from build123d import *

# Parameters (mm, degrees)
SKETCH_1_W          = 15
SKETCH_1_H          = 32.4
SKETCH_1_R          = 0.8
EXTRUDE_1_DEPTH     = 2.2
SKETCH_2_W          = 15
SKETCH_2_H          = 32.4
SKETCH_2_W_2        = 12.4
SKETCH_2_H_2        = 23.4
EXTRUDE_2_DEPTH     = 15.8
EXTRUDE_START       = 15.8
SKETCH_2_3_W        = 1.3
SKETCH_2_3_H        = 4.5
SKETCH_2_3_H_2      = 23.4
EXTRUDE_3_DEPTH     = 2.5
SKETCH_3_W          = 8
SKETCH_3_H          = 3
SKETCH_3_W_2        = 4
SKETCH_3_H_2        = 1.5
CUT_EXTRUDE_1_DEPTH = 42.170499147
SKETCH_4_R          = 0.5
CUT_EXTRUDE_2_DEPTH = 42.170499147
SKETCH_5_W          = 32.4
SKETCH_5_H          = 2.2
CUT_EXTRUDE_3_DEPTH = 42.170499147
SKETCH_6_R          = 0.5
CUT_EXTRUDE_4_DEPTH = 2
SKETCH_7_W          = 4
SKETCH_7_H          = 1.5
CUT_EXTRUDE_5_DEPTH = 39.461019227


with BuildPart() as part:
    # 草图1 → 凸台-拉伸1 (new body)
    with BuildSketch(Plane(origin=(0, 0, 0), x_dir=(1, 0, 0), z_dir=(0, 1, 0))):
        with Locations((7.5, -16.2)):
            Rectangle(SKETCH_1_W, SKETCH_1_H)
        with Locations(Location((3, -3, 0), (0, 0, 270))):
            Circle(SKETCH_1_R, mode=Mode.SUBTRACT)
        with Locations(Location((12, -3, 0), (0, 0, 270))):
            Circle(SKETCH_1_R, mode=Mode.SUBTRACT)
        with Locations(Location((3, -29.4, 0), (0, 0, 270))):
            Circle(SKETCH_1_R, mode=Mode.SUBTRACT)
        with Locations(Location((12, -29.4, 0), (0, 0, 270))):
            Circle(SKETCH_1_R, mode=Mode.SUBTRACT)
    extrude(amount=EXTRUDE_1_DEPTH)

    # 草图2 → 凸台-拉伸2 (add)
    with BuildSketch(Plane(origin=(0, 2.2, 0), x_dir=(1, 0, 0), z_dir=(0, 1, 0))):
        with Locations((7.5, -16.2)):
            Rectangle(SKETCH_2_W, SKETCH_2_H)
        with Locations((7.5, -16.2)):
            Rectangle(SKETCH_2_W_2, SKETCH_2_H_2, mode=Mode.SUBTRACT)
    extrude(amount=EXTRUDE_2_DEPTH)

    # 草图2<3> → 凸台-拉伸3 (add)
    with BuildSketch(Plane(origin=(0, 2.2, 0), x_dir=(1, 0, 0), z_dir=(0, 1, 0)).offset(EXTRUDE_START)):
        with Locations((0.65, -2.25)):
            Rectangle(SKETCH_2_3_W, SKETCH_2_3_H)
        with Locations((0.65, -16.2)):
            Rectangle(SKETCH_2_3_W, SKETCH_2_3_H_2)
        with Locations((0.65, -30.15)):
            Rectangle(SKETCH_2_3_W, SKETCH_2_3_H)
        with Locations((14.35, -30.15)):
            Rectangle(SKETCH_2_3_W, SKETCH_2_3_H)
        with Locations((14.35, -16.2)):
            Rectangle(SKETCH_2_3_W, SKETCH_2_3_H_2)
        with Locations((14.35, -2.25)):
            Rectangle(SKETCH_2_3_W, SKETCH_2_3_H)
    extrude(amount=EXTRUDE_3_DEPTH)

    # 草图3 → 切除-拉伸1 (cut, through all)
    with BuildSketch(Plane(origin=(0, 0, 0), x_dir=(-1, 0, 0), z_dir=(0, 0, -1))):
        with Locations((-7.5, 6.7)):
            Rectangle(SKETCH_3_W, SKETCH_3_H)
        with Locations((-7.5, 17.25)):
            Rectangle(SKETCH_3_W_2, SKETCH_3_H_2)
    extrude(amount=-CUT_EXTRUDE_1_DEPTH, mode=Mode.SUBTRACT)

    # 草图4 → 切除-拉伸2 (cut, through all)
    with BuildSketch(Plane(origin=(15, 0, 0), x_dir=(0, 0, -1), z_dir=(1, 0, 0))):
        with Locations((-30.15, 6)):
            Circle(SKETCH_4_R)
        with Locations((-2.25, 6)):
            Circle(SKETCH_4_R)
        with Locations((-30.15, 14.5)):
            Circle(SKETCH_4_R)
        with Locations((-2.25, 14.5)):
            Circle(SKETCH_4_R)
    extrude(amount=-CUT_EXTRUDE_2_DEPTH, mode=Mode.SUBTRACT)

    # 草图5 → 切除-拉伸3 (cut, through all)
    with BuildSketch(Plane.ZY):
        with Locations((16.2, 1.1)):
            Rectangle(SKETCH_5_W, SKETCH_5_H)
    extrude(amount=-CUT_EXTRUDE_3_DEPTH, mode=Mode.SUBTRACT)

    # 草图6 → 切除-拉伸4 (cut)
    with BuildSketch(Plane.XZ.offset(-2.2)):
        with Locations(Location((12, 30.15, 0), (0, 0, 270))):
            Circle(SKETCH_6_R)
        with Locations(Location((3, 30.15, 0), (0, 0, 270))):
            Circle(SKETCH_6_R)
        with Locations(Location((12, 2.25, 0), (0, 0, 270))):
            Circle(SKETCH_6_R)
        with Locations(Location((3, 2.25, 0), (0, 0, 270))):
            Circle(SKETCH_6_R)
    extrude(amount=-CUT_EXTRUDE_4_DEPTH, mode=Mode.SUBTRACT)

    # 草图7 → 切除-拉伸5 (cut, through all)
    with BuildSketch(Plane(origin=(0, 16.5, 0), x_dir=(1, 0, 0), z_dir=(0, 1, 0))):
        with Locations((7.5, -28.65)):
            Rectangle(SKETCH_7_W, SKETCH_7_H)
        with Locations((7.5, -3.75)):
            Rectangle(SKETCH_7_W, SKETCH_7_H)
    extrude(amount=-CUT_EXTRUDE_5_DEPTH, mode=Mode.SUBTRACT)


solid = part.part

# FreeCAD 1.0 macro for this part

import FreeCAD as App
import Part
import Sketcher

V = App.Vector
Q = App.Units.Quantity

doc = App.newDocument("Part")
body = doc.addObject("PartDesign::Body", "Body")

# Sketch on XZ plane
sketch1 = body.newObject("Sketcher::SketchObject", "Sketch")
sketch1.AttachmentSupport = (doc.getObject("XZ_Plane"), [""])
sketch1.MapMode = "FlatFace"
sketch1.addGeometry([
    Part.LineSegment(V(0, 0, 0), V(0, 32.4, 0)),  # 0
    Part.LineSegment(V(0, 32.4, 0), V(15, 32.4, 0)),  # 1
    Part.LineSegment(V(15, 32.4, 0), V(15, 0, 0)),  # 2
    Part.LineSegment(V(15, 0, 0), V(0, 0, 0)),  # 3
    Part.Circle(V(3, 29.4, 0), V(0, 0, 1), 0.8),  # 4
    Part.Circle(V(12, 29.4, 0), V(0, 0, 1), 0.8),  # 5
    Part.Circle(V(3, 3, 0), V(0, 0, 1), 0.8),  # 6
    Part.Circle(V(12, 3, 0), V(0, 0, 1), 0.8),  # 7
], False)
sketch1.addConstraint([
    Sketcher.Constraint("Coincident", 0, 2, 1, 1),
    Sketcher.Constraint("Coincident", 1, 2, 2, 1),
    Sketcher.Constraint("Coincident", 2, 2, 3, 1),
    Sketcher.Constraint("Coincident", 3, 2, 0, 1),
    Sketcher.Constraint("Vertical", 0),
    Sketcher.Constraint("Horizontal", 1),
    Sketcher.Constraint("Vertical", 2),
    Sketcher.Constraint("Horizontal", 3),
    Sketcher.Constraint("Coincident", 3, 2, -1, 1),
    Sketcher.Constraint("Equal", 4, 5),
    Sketcher.Constraint("Equal", 5, 6),
    Sketcher.Constraint("Equal", 6, 7),
    Sketcher.Constraint("Horizontal", 4, 3, 5, 3),
    Sketcher.Constraint("Horizontal", 6, 3, 7, 3),
    Sketcher.Constraint("Vertical", 4, 3, 6, 3),
    Sketcher.Constraint("Vertical", 5, 3, 7, 3),
    Sketcher.Constraint("Diameter", 4, Q("1.6 mm")),
    Sketcher.Constraint("DistanceX", 1, 1, 1, 2, Q("15 mm")),
    Sketcher.Constraint("DistanceY", 0, 1, 0, 2, Q("32.4 mm")),
    Sketcher.Constraint("DistanceX", -1, 1, 4, 3, Q("3 mm")),
    Sketcher.Constraint("DistanceX", -1, 1, 5, 3, Q("12 mm")),
    Sketcher.Constraint("DistanceY", -1, 1, 6, 3, Q("3 mm")),
    Sketcher.Constraint("DistanceY", 4, 3, 0, 2, Q("3 mm")),
])
pad1 = body.newObject("PartDesign::Pad", "Pad")
pad1.Profile = sketch1
pad1.Length = 2.2
pad1.Reversed = True

# Sketch on XZ plane
sketch2 = body.newObject("Sketcher::SketchObject", "Sketch001")
sketch2.AttachmentSupport = (doc.getObject("XZ_Plane"), [""])
sketch2.MapMode = "FlatFace"
sketch2.AttachmentOffset = App.Placement(V(0, 0, -2.2), App.Rotation())
sketch2.addGeometry([
    Part.LineSegment(V(0, 0, 0), V(0, 32.4, 0)),  # 0
    Part.LineSegment(V(0, 32.4, 0), V(15, 32.4, 0)),  # 1
    Part.LineSegment(V(15, 32.4, 0), V(15, 0, 0)),  # 2
    Part.LineSegment(V(15, 0, 0), V(0, 0, 0)),  # 3
    Part.LineSegment(V(13.7, 27.9, 0), V(1.3, 27.9, 0)),  # 4
    Part.LineSegment(V(1.3, 27.9, 0), V(1.3, 4.5, 0)),  # 5
    Part.LineSegment(V(1.3, 4.5, 0), V(13.7, 4.5, 0)),  # 6
    Part.LineSegment(V(13.7, 4.5, 0), V(13.7, 27.9, 0)),  # 7
], False)
sketch2.addConstraint([
    Sketcher.Constraint("Coincident", 0, 2, 1, 1),
    Sketcher.Constraint("Coincident", 1, 2, 2, 1),
    Sketcher.Constraint("Coincident", 2, 2, 3, 1),
    Sketcher.Constraint("Coincident", 3, 2, 0, 1),
    Sketcher.Constraint("Coincident", 4, 2, 5, 1),
    Sketcher.Constraint("Coincident", 5, 2, 6, 1),
    Sketcher.Constraint("Coincident", 6, 2, 7, 1),
    Sketcher.Constraint("Coincident", 7, 2, 4, 1),
    Sketcher.Constraint("Vertical", 0),
    Sketcher.Constraint("Horizontal", 1),
    Sketcher.Constraint("Vertical", 2),
    Sketcher.Constraint("Horizontal", 3),
    Sketcher.Constraint("Horizontal", 4),
    Sketcher.Constraint("Vertical", 5),
    Sketcher.Constraint("Horizontal", 6),
    Sketcher.Constraint("Vertical", 7),
    Sketcher.Constraint("Coincident", 3, 2, -1, 1),
    Sketcher.Constraint("DistanceX", 1, 1, 1, 2, Q("15 mm")),
    Sketcher.Constraint("DistanceX", 4, 2, 4, 1, Q("12.4 mm")),
    Sketcher.Constraint("DistanceY", 0, 1, 0, 2, Q("32.4 mm")),
    Sketcher.Constraint("DistanceY", 5, 2, 5, 1, Q("23.4 mm")),
    Sketcher.Constraint("DistanceX", -1, 1, 4, 2, Q("1.3 mm")),
    Sketcher.Constraint("DistanceY", -1, 1, 4, 2, Q("27.9 mm")),
])
pad2 = body.newObject("PartDesign::Pad", "Pad001")
pad2.Profile = sketch2
pad2.Length = 15.8
pad2.Reversed = True

# Sketch on XZ plane
sketch3 = body.newObject("Sketcher::SketchObject", "Sketch002")
sketch3.AttachmentSupport = (doc.getObject("XZ_Plane"), [""])
sketch3.MapMode = "FlatFace"
sketch3.AttachmentOffset = App.Placement(V(0, 0, -18), App.Rotation())
sketch3.addGeometry([
    Part.LineSegment(V(0, 0, 0), V(0, 32.4, 0)),  # 0
    Part.LineSegment(V(0, 32.4, 0), V(1.3, 32.4, 0)),  # 1
    Part.LineSegment(V(1.3, 32.4, 0), V(1.3, 0, 0)),  # 2
    Part.LineSegment(V(1.3, 0, 0), V(0, 0, 0)),  # 3
    Part.LineSegment(V(13.7, 32.4, 0), V(15, 32.4, 0)),  # 4
    Part.LineSegment(V(15, 32.4, 0), V(15, 0, 0)),  # 5
    Part.LineSegment(V(15, 0, 0), V(13.7, 0, 0)),  # 6
    Part.LineSegment(V(13.7, 0, 0), V(13.7, 32.4, 0)),  # 7
], False)
sketch3.addConstraint([
    Sketcher.Constraint("Coincident", 0, 2, 1, 1),
    Sketcher.Constraint("Coincident", 1, 2, 2, 1),
    Sketcher.Constraint("Coincident", 2, 2, 3, 1),
    Sketcher.Constraint("Coincident", 3, 2, 0, 1),
    Sketcher.Constraint("Coincident", 4, 2, 5, 1),
    Sketcher.Constraint("Coincident", 5, 2, 6, 1),
    Sketcher.Constraint("Coincident", 6, 2, 7, 1),
    Sketcher.Constraint("Coincident", 7, 2, 4, 1),
    Sketcher.Constraint("Vertical", 0),
    Sketcher.Constraint("Horizontal", 1),
    Sketcher.Constraint("Vertical", 2),
    Sketcher.Constraint("Horizontal", 3),
    Sketcher.Constraint("Horizontal", 4),
    Sketcher.Constraint("Vertical", 5),
    Sketcher.Constraint("Horizontal", 6),
    Sketcher.Constraint("Vertical", 7),
    Sketcher.Constraint("Coincident", 3, 2, -1, 1),
    Sketcher.Constraint("PointOnObject", 5, 2, -1),
    Sketcher.Constraint("Horizontal", 1, 2, 4, 2),
    Sketcher.Constraint("Equal", 3, 4),
    Sketcher.Constraint("DistanceX", 1, 1, 1, 2, Q("1.3 mm")),
    Sketcher.Constraint("DistanceY", 0, 1, 0, 2, Q("32.4 mm")),
    Sketcher.Constraint("DistanceX", -1, 1, 4, 2, Q("15 mm")),
])
pad3 = body.newObject("PartDesign::Pad", "Pad002")
pad3.Profile = sketch3
pad3.Length = 2.5
pad3.Reversed = True

# Sketch on XY plane
sketch4 = body.newObject("Sketcher::SketchObject", "Sketch003")
sketch4.AttachmentSupport = (doc.getObject("XY_Plane"), [""])
sketch4.MapMode = "FlatFace"
sketch4.addGeometry([
    Part.LineSegment(V(11.5, 8.2, 0), V(11.5, 5.2, 0)),  # 0
    Part.LineSegment(V(11.5, 5.2, 0), V(3.5, 5.2, 0)),  # 1
    Part.LineSegment(V(3.5, 5.2, 0), V(3.5, 8.2, 0)),  # 2
    Part.LineSegment(V(3.5, 8.2, 0), V(11.5, 8.2, 0)),  # 3
    Part.LineSegment(V(9.5, 18, 0), V(9.5, 16.5, 0)),  # 4
    Part.LineSegment(V(9.5, 16.5, 0), V(5.5, 16.5, 0)),  # 5
    Part.LineSegment(V(5.5, 16.5, 0), V(5.5, 18, 0)),  # 6
    Part.LineSegment(V(5.5, 18, 0), V(9.5, 18, 0)),  # 7
], False)
sketch4.addConstraint([
    Sketcher.Constraint("Coincident", 0, 2, 1, 1),
    Sketcher.Constraint("Coincident", 1, 2, 2, 1),
    Sketcher.Constraint("Coincident", 2, 2, 3, 1),
    Sketcher.Constraint("Coincident", 3, 2, 0, 1),
    Sketcher.Constraint("Coincident", 4, 2, 5, 1),
    Sketcher.Constraint("Coincident", 5, 2, 6, 1),
    Sketcher.Constraint("Coincident", 6, 2, 7, 1),
    Sketcher.Constraint("Coincident", 7, 2, 4, 1),
    Sketcher.Constraint("Vertical", 0),
    Sketcher.Constraint("Horizontal", 1),
    Sketcher.Constraint("Vertical", 2),
    Sketcher.Constraint("Horizontal", 3),
    Sketcher.Constraint("Vertical", 4),
    Sketcher.Constraint("Horizontal", 5),
    Sketcher.Constraint("Vertical", 6),
    Sketcher.Constraint("Horizontal", 7),
    Sketcher.Constraint("DistanceX", 1, 2, 1, 1, Q("8 mm")),
    Sketcher.Constraint("DistanceX", 5, 2, 5, 1, Q("4 mm")),
    Sketcher.Constraint("DistanceY", 0, 2, 0, 1, Q("3 mm")),
    Sketcher.Constraint("DistanceY", 4, 2, 4, 1, Q("1.5 mm")),
    Sketcher.Constraint("DistanceY", -1, 1, 6, 2, Q("18 mm")),
    Sketcher.Constraint("DistanceX", 4, 2, 3, 2, Q("2 mm")),
    Sketcher.Constraint("DistanceX", -1, 1, 0, 2, Q("11.5 mm")),
    Sketcher.Constraint("DistanceY", -1, 1, 0, 2, Q("5.2 mm")),
])
pocket1 = body.newObject("PartDesign::Pocket", "Pocket")
pocket1.Profile = sketch4
pocket1.Type = "ThroughAll"
pocket1.Reversed = True

# Sketch on YZ plane
sketch5 = body.newObject("Sketcher::SketchObject", "Sketch004")
sketch5.AttachmentSupport = (doc.getObject("YZ_Plane"), [""])
sketch5.MapMode = "FlatFace"
sketch5.AttachmentOffset = App.Placement(V(0, 0, 15), App.Rotation())
sketch5.addGeometry([
    Part.Circle(V(6, 30.15, 0), V(0, 0, 1), 0.5),
    Part.Circle(V(6, 2.25, 0), V(0, 0, 1), 0.5),
    Part.Circle(V(14.5, 30.15, 0), V(0, 0, 1), 0.5),
    Part.Circle(V(14.5, 2.25, 0), V(0, 0, 1), 0.5),
], False)
sketch5.addConstraint([
    Sketcher.Constraint("Equal", 0, 1),
    Sketcher.Constraint("Equal", 1, 2),
    Sketcher.Constraint("Equal", 2, 3),
    Sketcher.Constraint("Horizontal", 0, 3, 2, 3),
    Sketcher.Constraint("Horizontal", 1, 3, 3, 3),
    Sketcher.Constraint("Vertical", 0, 3, 1, 3),
    Sketcher.Constraint("Vertical", 2, 3, 3, 3),
    Sketcher.Constraint("Diameter", 0, Q("1 mm")),
    Sketcher.Constraint("DistanceX", -1, 1, 0, 3, Q("6 mm")),
    Sketcher.Constraint("DistanceX", -1, 1, 2, 3, Q("14.5 mm")),
    Sketcher.Constraint("DistanceY", 1, 3, 0, 3, Q("27.9 mm")),
    Sketcher.Constraint("DistanceY", -1, 1, 0, 3, Q("30.15 mm")),
])
pocket2 = body.newObject("PartDesign::Pocket", "Pocket001")
pocket2.Profile = sketch5
pocket2.Type = "ThroughAll"

# Sketch on YZ plane
sketch6 = body.newObject("Sketcher::SketchObject", "Sketch005")
sketch6.AttachmentSupport = (doc.getObject("YZ_Plane"), [""])
sketch6.MapMode = "FlatFace"
sketch6.addGeometry([
    Part.LineSegment(V(2.2, 0, 0), V(0, 0, 0)),
    Part.LineSegment(V(0, 0, 0), V(0, 32.4, 0)),
    Part.LineSegment(V(0, 32.4, 0), V(2.2, 32.4, 0)),
    Part.LineSegment(V(2.2, 32.4, 0), V(2.2, 0, 0)),
], False)
sketch6.addConstraint([
    Sketcher.Constraint("Coincident", 0, 2, 1, 1),
    Sketcher.Constraint("Coincident", 1, 2, 2, 1),
    Sketcher.Constraint("Coincident", 2, 2, 3, 1),
    Sketcher.Constraint("Coincident", 3, 2, 0, 1),
    Sketcher.Constraint("Horizontal", 0),
    Sketcher.Constraint("Vertical", 1),
    Sketcher.Constraint("Horizontal", 2),
    Sketcher.Constraint("Vertical", 3),
    Sketcher.Constraint("Coincident", 0, 2, -1, 1),
    Sketcher.Constraint("DistanceX", 0, 2, 0, 1, Q("2.2 mm")),
    Sketcher.Constraint("DistanceY", 1, 1, 1, 2, Q("32.4 mm")),
])
pocket3 = body.newObject("PartDesign::Pocket", "Pocket002")
pocket3.Profile = sketch6
pocket3.Type = "ThroughAll"
pocket3.Reversed = True

# Sketch on XZ plane
sketch7 = body.newObject("Sketcher::SketchObject", "Sketch006")
sketch7.AttachmentSupport = (doc.getObject("XZ_Plane"), [""])
sketch7.MapMode = "FlatFace"
sketch7.AttachmentOffset = App.Placement(V(0, 0, -2.2), App.Rotation())
sketch7.addGeometry([
    Part.Circle(V(12, 30.15, 0), V(0, 0, 1), 0.5),
    Part.Circle(V(3, 30.15, 0), V(0, 0, 1), 0.5),
    Part.Circle(V(12, 2.25, 0), V(0, 0, 1), 0.5),
    Part.Circle(V(3, 2.25, 0), V(0, 0, 1), 0.5),
], False)
sketch7.addConstraint([
    Sketcher.Constraint("Equal", 0, 1),
    Sketcher.Constraint("Equal", 1, 2),
    Sketcher.Constraint("Equal", 2, 3),
    Sketcher.Constraint("Horizontal", 0, 3, 1, 3),
    Sketcher.Constraint("Horizontal", 2, 3, 3, 3),
    Sketcher.Constraint("Vertical", 0, 3, 2, 3),
    Sketcher.Constraint("Vertical", 1, 3, 3, 3),
    Sketcher.Constraint("Diameter", 0, Q("1 mm")),
    Sketcher.Constraint("DistanceX", -1, 1, 0, 3, Q("12 mm")),
    Sketcher.Constraint("DistanceX", -1, 1, 1, 3, Q("3 mm")),
    Sketcher.Constraint("DistanceY", 2, 3, 0, 3, Q("27.9 mm")),
    Sketcher.Constraint("DistanceY", -1, 1, 0, 3, Q("30.15 mm")),
])
pocket4 = body.newObject("PartDesign::Pocket", "Pocket003")
pocket4.Profile = sketch7
pocket4.Length = 2

# Sketch on XZ plane
sketch8 = body.newObject("Sketcher::SketchObject", "Sketch007")
sketch8.AttachmentSupport = (doc.getObject("XZ_Plane"), [""])
sketch8.MapMode = "FlatFace"
sketch8.AttachmentOffset = App.Placement(V(0, 0, -16.5), App.Rotation())
sketch8.addGeometry([
    Part.LineSegment(V(5.5, 27.9, 0), V(5.5, 29.4, 0)),  # 0
    Part.LineSegment(V(5.5, 29.4, 0), V(9.5, 29.4, 0)),  # 1
    Part.LineSegment(V(9.5, 29.4, 0), V(9.5, 27.9, 0)),  # 2
    Part.LineSegment(V(9.5, 27.9, 0), V(5.5, 27.9, 0)),  # 3
    Part.LineSegment(V(5.5, 3, 0), V(5.5, 4.5, 0)),  # 4
    Part.LineSegment(V(5.5, 4.5, 0), V(9.5, 4.5, 0)),  # 5
    Part.LineSegment(V(9.5, 4.5, 0), V(9.5, 3, 0)),  # 6
    Part.LineSegment(V(9.5, 3, 0), V(5.5, 3, 0)),  # 7
], False)
sketch8.addConstraint([
    Sketcher.Constraint("Coincident", 0, 2, 1, 1),
    Sketcher.Constraint("Coincident", 1, 2, 2, 1),
    Sketcher.Constraint("Coincident", 2, 2, 3, 1),
    Sketcher.Constraint("Coincident", 3, 2, 0, 1),
    Sketcher.Constraint("Coincident", 4, 2, 5, 1),
    Sketcher.Constraint("Coincident", 5, 2, 6, 1),
    Sketcher.Constraint("Coincident", 6, 2, 7, 1),
    Sketcher.Constraint("Coincident", 7, 2, 4, 1),
    Sketcher.Constraint("Vertical", 0),
    Sketcher.Constraint("Horizontal", 1),
    Sketcher.Constraint("Vertical", 2),
    Sketcher.Constraint("Horizontal", 3),
    Sketcher.Constraint("Vertical", 4),
    Sketcher.Constraint("Horizontal", 5),
    Sketcher.Constraint("Vertical", 6),
    Sketcher.Constraint("Horizontal", 7),
    Sketcher.Constraint("Vertical", 3, 2, 4, 2),
    Sketcher.Constraint("Vertical", 2, 2, 5, 2),
    Sketcher.Constraint("Equal", 2, 4),
    Sketcher.Constraint("DistanceX", 1, 1, 1, 2, Q("4 mm")),
    Sketcher.Constraint("DistanceY", 0, 1, 0, 2, Q("1.5 mm")),
    Sketcher.Constraint("DistanceY", -1, 1, 6, 2, Q("3 mm")),
    Sketcher.Constraint("DistanceX", -1, 1, 0, 2, Q("5.5 mm")),
    Sketcher.Constraint("DistanceY", -1, 1, 0, 2, Q("29.4 mm")),
])
pocket5 = body.newObject("PartDesign::Pocket", "Pocket004")
pocket5.Profile = sketch8
pocket5.Type = "ThroughAll"
pocket5.Reversed = True

doc.recompute()
